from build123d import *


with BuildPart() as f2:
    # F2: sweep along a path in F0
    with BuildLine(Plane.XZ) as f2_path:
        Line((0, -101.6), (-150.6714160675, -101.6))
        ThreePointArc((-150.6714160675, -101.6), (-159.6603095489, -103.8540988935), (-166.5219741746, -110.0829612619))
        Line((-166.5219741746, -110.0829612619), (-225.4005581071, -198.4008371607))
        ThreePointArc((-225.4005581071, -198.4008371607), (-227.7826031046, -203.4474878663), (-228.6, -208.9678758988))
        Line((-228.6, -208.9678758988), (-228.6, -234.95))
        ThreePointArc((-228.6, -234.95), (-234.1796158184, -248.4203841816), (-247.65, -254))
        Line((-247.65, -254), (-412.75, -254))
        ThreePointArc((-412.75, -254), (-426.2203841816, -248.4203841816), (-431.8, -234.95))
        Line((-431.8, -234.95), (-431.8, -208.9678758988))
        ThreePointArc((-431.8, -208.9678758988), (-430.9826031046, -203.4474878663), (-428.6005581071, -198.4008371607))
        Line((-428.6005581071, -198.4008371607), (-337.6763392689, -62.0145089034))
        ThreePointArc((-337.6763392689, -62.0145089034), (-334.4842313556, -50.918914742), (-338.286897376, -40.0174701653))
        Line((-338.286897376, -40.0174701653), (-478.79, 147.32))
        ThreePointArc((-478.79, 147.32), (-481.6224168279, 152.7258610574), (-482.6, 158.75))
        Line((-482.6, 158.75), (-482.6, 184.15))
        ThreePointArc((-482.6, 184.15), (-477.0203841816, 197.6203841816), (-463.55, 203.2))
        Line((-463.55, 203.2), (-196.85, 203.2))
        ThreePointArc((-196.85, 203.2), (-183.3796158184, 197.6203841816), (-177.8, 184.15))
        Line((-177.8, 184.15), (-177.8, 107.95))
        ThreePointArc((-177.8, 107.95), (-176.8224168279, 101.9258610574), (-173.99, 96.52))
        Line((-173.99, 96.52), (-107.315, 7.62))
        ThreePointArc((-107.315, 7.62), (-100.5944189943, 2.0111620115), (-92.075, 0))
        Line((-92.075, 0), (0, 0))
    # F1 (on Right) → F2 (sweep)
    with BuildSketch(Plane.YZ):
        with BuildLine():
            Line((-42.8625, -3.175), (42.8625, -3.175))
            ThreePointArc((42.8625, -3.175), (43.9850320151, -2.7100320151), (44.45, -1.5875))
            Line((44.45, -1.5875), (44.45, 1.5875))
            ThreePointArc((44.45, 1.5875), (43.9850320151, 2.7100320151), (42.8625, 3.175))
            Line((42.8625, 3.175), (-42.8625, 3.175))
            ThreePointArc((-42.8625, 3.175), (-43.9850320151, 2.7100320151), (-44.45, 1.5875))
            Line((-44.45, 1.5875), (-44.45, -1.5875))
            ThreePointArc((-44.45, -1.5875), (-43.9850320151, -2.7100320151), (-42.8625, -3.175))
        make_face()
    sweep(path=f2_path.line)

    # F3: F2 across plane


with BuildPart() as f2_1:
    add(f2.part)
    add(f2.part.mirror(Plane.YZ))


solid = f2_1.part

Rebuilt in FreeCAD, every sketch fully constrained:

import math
import FreeCAD as App
import Part
import Sketcher

V = App.Vector
Q = App.Units.Quantity

doc = App.newDocument("Part")
params = doc.addObject("Spreadsheet::Sheet", "Params")
for row, (alias, value) in enumerate([
    ("sketch1_radius", "0.0625 in"),
    ("sketch1_width", "3.375 in"),
    ("sketch1_height", "0.125 in"),
    ("sketch2_height", "1 in"),
    ("sketch2_height2", "3 in"),
    ("sketch2_radius", "0.75 in"),
    ("sketch2_width", "6.5 in"),
    ("sketch2_width2", "10.5 in"),
], start=1):
    params.set(f"A{row}", alias)
    params.set(f"B{row}", "=" + value)
    params.setAlias(f"B{row}", alias)

body = doc.addObject("PartDesign::Body", "Body")

# Sketch on YZ plane
sketch1 = doc.addObject("Sketcher::SketchObject", "Sketch")
body.addObject(sketch1)
sketch1.AttachmentSupport = (doc.YZ_Plane, [""])
sketch1.MapMode = "FlatFace"
sketch1.addGeometry([
    Part.LineSegment(V(-42.9, -3.2, 0), V(42.9, -3.2, 0)),  # 0
    Part.ArcOfCircle(Part.Circle(V(42.9, -1.6, 0), V(0, 0, 1), 1.6), math.radians(-90), math.radians(0)),  # 1
    Part.LineSegment(V(44.5, -1.6, 0), V(44.5, 1.6, 0)),  # 2
    Part.ArcOfCircle(Part.Circle(V(42.9, 1.6, 0), V(0, 0, 1), 1.6), math.radians(0), math.radians(90)),  # 3
    Part.LineSegment(V(42.9, 3.2, 0), V(-42.9, 3.2, 0)),  # 4
    Part.ArcOfCircle(Part.Circle(V(-42.9, 1.6, 0), V(0, 0, 1), 1.6), math.radians(90), math.radians(180)),  # 5
    Part.LineSegment(V(-44.5, 1.6, 0), V(-44.5, -1.6, 0)),  # 6
    Part.ArcOfCircle(Part.Circle(V(-42.9, -1.6, 0), V(0, 0, 1), 1.6), math.radians(180), math.radians(270)),  # 7
], False)
sketch1.addConstraint([
    Sketcher.Constraint("Tangent", 0, 2, 1, 1),
    Sketcher.Constraint("Tangent", 1, 2, 2, 1),
    Sketcher.Constraint("Tangent", 2, 2, 3, 1),
    Sketcher.Constraint("Tangent", 3, 2, 4, 1),
    Sketcher.Constraint("Tangent", 4, 2, 5, 1),
    Sketcher.Constraint("Tangent", 5, 2, 6, 1),
    Sketcher.Constraint("Tangent", 6, 2, 7, 1),
    Sketcher.Constraint("Tangent", 7, 2, 0, 1),
    Sketcher.Constraint("Horizontal", 0),
    Sketcher.Constraint("Vertical", 2),
    Sketcher.Constraint("Horizontal", 4),
    Sketcher.Constraint("Vertical", 6),
    Sketcher.Constraint("Equal", 1, 3),
    Sketcher.Constraint("Equal", 3, 5),
    Sketcher.Constraint("Equal", 5, 7),
    Sketcher.Constraint("Symmetric", 1, 3, 5, 3, -1, 1),
    Sketcher.Constraint("Radius", 1, Q("0.0625 in")),
    Sketcher.Constraint("DistanceX", 0, 1, 0, 2, Q("3.375 in")),
    Sketcher.Constraint("DistanceY", 2, 1, 2, 2, Q("0.125 in")),
])
sketch1.setExpression("Constraints[16]", "Params.sketch1_radius")
sketch1.setExpression("Constraints[17]", "Params.sketch1_width")
sketch1.setExpression("Constraints[18]", "Params.sketch1_height")

# Sketch on XZ plane
sketch2 = doc.addObject("Sketcher::SketchObject", "Sketch001")
body.addObject(sketch2)
sketch2.AttachmentSupport = (doc.XZ_Plane, [""])
sketch2.MapMode = "FlatFace"
sketch2.addGeometry([
    Part.LineSegment(V(0, -102, 0), V(-151, -102, 0)),  # 0
    Part.ArcOfCircle(Part.Circle(V(-151, -121, 0), V(0, 0, 1), 19), math.radians(90), math.radians(146)),  # 1
    Part.LineSegment(V(-167, -110, 0), V(-225, -198, 0)),  # 2
    Part.ArcOfCircle(Part.Circle(V(-210, -209, 0), V(0, 0, 1), 19), math.radians(146), math.radians(180)),  # 3
    Part.LineSegment(V(-229, -209, 0), V(-229, -235, 0)),  # 4
    Part.ArcOfCircle(Part.Circle(V(-248, -235, 0), V(0, 0, 1), 19), math.radians(-90), math.radians(0)),  # 5
    Part.LineSegment(V(-248, -254, 0), V(-413, -254, 0)),  # 6
    Part.ArcOfCircle(Part.Circle(V(-413, -235, 0), V(0, 0, 1), 19), math.radians(180), math.radians(270)),  # 7
    Part.LineSegment(V(-432, -235, 0), V(-432, -209, 0)),  # 8
    Part.ArcOfCircle(Part.Circle(V(-413, -209, 0), V(0, 0, 1), 19), math.radians(146), math.radians(180)),  # 9
    Part.LineSegment(V(-429, -198, 0), V(-338, -62, 0)),  # 10
    Part.ArcOfCircle(Part.Circle(V(-354, -51, 0), V(0, 0, 1), 19), math.radians(-34), math.radians(37)),  # 11
    Part.LineSegment(V(-338, -40, 0), V(-479, 147, 0)),  # 12
    Part.ArcOfCircle(Part.Circle(V(-464, 159, 0), V(0, 0, 1), 19), math.radians(180), math.radians(217)),  # 13
    Part.LineSegment(V(-483, 159, 0), V(-483, 184, 0)),  # 14
    Part.ArcOfCircle(Part.Circle(V(-464, 184, 0), V(0, 0, 1), 19), math.radians(90), math.radians(180)),  # 15
    Part.LineSegment(V(-464, 203, 0), V(-197, 203, 0)),  # 16
    Part.ArcOfCircle(Part.Circle(V(-197, 184, 0), V(0, 0, 1), 19), math.radians(0), math.radians(90)),  # 17
    Part.LineSegment(V(-178, 184, 0), V(-178, 108, 0)),  # 18
    Part.ArcOfCircle(Part.Circle(V(-159, 108, 0), V(0, 0, 1), 19), math.radians(180), math.radians(217)),  # 19
    Part.LineSegment(V(-174, 97, 0), V(-107, 8, 0)),  # 20
    Part.ArcOfCircle(Part.Circle(V(-92, 19, 0), V(0, 0, 1), 19), math.radians(-143), math.radians(-90)),  # 21
    Part.LineSegment(V(-92, 0, 0), V(0, 0, 0)),  # 22
], False)
sketch2.addConstraint([
    Sketcher.Constraint("Tangent", 0, 2, 1, 1),
    Sketcher.Constraint("Tangent", 1, 2, 2, 1),
    Sketcher.Constraint("Tangent", 2, 2, 3, 1),
    Sketcher.Constraint("Tangent", 3, 2, 4, 1),
    Sketcher.Constraint("Tangent", 4, 2, 5, 2),
    Sketcher.Constraint("Tangent", 5, 1, 6, 1),
    Sketcher.Constraint("Tangent", 6, 2, 7, 2),
    Sketcher.Constraint("Tangent", 7, 1, 8, 1),
    Sketcher.Constraint("Tangent", 8, 2, 9, 2),
    Sketcher.Constraint("Tangent", 9, 1, 10, 1),
    Sketcher.Constraint("Tangent", 10, 2, 11, 1),
    Sketcher.Constraint("Tangent", 11, 2, 12, 1),
    Sketcher.Constraint("Tangent", 12, 2, 13, 2),
    Sketcher.Constraint("Tangent", 13, 1, 14, 1),
    Sketcher.Constraint("Tangent", 14, 2, 15, 2),
    Sketcher.Constraint("Tangent", 15, 1, 16, 1),
    Sketcher.Constraint("Tangent", 16, 2, 17, 2),
    Sketcher.Constraint("Tangent", 17, 1, 18, 1),
    Sketcher.Constraint("Tangent", 18, 2, 19, 1),
    Sketcher.Constraint("Tangent", 19, 2, 20, 1),
    Sketcher.Constraint("Tangent", 20, 2, 21, 1),
    Sketcher.Constraint("Tangent", 21, 2, 22, 1),
    Sketcher.Constraint("Horizontal", 0),
    Sketcher.Constraint("Vertical", 4),
    Sketcher.Constraint("Horizontal", 6),
    Sketcher.Constraint("Vertical", 8),
    Sketcher.Constraint("Vertical", 14),
    Sketcher.Constraint("Horizontal", 16),
    Sketcher.Constraint("Vertical", 18),
    Sketcher.Constraint("Horizontal", 22),
    Sketcher.Constraint("Coincident", 22, 2, -1, 1),
    Sketcher.Constraint("Equal", 1, 3),
    Sketcher.Constraint("Equal", 3, 5),
    Sketcher.Constraint("Equal", 5, 7),
    Sketcher.Constraint("Equal", 7, 9),
    Sketcher.Constraint("Equal", 9, 11),
    Sketcher.Constraint("Equal", 11, 13),
    Sketcher.Constraint("Equal", 13, 15),
    Sketcher.Constraint("Equal", 15, 17),
    Sketcher.Constraint("Equal", 17, 19),
    Sketcher.Constraint("Equal", 19, 21),
    Sketcher.Constraint("PointOnObject", 0, 1, -2),
    Sketcher.Constraint("Parallel", 2, 10),
    Sketcher.Constraint("Parallel", 12, 20),
    Sketcher.Constraint("Horizontal", 3, 3, 9, 3),
    Sketcher.Constraint("DistanceY", 14, 1, 14, 2, Q("1 in")),
    Sketcher.Constraint("DistanceY", 18, 2, 18, 1, Q("3 in")),
    Sketcher.Constraint("Radius", 1, Q("0.75 in")),
    Sketcher.Constraint("DistanceX", 6, 2, 6, 1, Q("6.5 in")),
    Sketcher.Constraint("DistanceX", 16, 1, 16, 2, Q("10.5 in")),
    Sketcher.Constraint("DistanceY", 0, 1, -1, 1, Q("4 in")),
    Sketcher.Constraint("DistanceX", 3, 2, -1, 1, Q("9 in")),
    Sketcher.Constraint("DistanceY", 5, 1, -1, 1, Q("10 in")),
    Sketcher.Constraint("DistanceX", 13, 1, -1, 1, Q("19 in")),
    Sketcher.Constraint("DistanceY", -1, 1, 15, 1, Q("8 in")),
    Sketcher.Constraint("DistanceY", -1, 1, 12, 2, Q("5.8 in")),
    Sketcher.Constraint("DistanceX", 0, 2, 0, 1, Q("150.671416 mm")),
    Sketcher.Constraint("DistanceY", 4, 2, 4, 1, Q("25.982124 mm")),
])
sketch2.setExpression("Constraints[45]", "Params.sketch2_height")
sketch2.setExpression("Constraints[46]", "Params.sketch2_height2")
sketch2.setExpression("Constraints[47]", "Params.sketch2_radius")
sketch2.setExpression("Constraints[48]", "Params.sketch2_width")
sketch2.setExpression("Constraints[49]", "Params.sketch2_width2")
doc.recompute()

additivepipe = doc.addObject("PartDesign::AdditivePipe", "AdditivePipe")
body.addObject(additivepipe)
additivepipe.Profile = sketch1
additivepipe.Spine = (sketch2, ["Edge1", "Edge2", "Edge3", "Edge4", "Edge5", "Edge6", "Edge7", "Edge8", "Edge9", "Edge10", "Edge11", "Edge12", "Edge13", "Edge14", "Edge15", "Edge16", "Edge17", "Edge18", "Edge19", "Edge20", "Edge21", "Edge22", "Edge23"])
body2 = doc.addObject("PartDesign::Body", "Body001")
doc.recompute()

body2.BaseFeature = body
doc.recompute()

mirroring = doc.addObject("Part::Mirroring", "Mirroring")
mirroring.Source = body
mirroring.Base = V(0, 0, 0)
mirroring.Normal = V(1, 0, 0)
body3 = doc.addObject("PartDesign::Body", "Body002")
body3.BaseFeature = mirroring
boolean = doc.addObject("PartDesign::Boolean", "Boolean")
body2.addObject(boolean)
boolean.Type = "Fuse"
boolean.addObjects([body3])
doc.recompute()
mirroring.Visibility = False

doc.recompute()
